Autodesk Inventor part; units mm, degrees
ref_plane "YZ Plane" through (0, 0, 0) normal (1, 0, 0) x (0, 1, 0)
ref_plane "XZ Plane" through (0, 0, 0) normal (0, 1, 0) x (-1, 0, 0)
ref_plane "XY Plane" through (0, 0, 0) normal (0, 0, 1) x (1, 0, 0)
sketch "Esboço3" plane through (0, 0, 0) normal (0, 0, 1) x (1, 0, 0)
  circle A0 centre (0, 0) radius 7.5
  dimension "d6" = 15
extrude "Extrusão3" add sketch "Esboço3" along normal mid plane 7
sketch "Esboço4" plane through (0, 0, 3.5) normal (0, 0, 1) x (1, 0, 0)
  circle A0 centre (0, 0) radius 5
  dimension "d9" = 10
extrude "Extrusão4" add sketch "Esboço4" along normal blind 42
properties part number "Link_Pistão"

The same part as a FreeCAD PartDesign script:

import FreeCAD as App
import Part
import Sketcher
from FreeCAD import Vector

doc = App.newDocument("Part")
body = doc.addObject("PartDesign::Body", "Body")

# Sketch on XY plane
sketch1 = body.newObject("Sketcher::SketchObject", "Sketch")
sketch1.AttachmentSupport = (doc.getObject("XY_Plane"), [""])
sketch1.MapMode = "FlatFace"
sketch1.addGeometry(Part.Circle(Vector(0, 0, 0), Vector(0, 0, 1), 8), False)
sketch1.addConstraint(Sketcher.Constraint("Coincident", 0, 3, -1, 1))
sketch1.addConstraint(Sketcher.Constraint("Diameter", 0, 15.0))
pad1 = body.newObject("PartDesign::Pad", "Pad")
pad1.Profile = sketch1
pad1.Length = 7
pad1.Midplane = True

# Sketch on XY plane
sketch2 = body.newObject("Sketcher::SketchObject", "Sketch001")
sketch2.AttachmentSupport = (doc.getObject("XY_Plane"), [""])
sketch2.MapMode = "FlatFace"
sketch2.AttachmentOffset = App.Placement(Vector(0, 0, 3.5), App.Rotation())
sketch2.addGeometry(Part.Circle(Vector(0, 0, 0), Vector(0, 0, 1), 5), False)
sketch2.addConstraint(Sketcher.Constraint("Coincident", 0, 3, -1, 1))
sketch2.addConstraint(Sketcher.Constraint("Diameter", 0, 10.0))
pad2 = body.newObject("PartDesign::Pad", "Pad001")
pad2.Profile = sketch2
pad2.Length = 42

doc.recompute()
